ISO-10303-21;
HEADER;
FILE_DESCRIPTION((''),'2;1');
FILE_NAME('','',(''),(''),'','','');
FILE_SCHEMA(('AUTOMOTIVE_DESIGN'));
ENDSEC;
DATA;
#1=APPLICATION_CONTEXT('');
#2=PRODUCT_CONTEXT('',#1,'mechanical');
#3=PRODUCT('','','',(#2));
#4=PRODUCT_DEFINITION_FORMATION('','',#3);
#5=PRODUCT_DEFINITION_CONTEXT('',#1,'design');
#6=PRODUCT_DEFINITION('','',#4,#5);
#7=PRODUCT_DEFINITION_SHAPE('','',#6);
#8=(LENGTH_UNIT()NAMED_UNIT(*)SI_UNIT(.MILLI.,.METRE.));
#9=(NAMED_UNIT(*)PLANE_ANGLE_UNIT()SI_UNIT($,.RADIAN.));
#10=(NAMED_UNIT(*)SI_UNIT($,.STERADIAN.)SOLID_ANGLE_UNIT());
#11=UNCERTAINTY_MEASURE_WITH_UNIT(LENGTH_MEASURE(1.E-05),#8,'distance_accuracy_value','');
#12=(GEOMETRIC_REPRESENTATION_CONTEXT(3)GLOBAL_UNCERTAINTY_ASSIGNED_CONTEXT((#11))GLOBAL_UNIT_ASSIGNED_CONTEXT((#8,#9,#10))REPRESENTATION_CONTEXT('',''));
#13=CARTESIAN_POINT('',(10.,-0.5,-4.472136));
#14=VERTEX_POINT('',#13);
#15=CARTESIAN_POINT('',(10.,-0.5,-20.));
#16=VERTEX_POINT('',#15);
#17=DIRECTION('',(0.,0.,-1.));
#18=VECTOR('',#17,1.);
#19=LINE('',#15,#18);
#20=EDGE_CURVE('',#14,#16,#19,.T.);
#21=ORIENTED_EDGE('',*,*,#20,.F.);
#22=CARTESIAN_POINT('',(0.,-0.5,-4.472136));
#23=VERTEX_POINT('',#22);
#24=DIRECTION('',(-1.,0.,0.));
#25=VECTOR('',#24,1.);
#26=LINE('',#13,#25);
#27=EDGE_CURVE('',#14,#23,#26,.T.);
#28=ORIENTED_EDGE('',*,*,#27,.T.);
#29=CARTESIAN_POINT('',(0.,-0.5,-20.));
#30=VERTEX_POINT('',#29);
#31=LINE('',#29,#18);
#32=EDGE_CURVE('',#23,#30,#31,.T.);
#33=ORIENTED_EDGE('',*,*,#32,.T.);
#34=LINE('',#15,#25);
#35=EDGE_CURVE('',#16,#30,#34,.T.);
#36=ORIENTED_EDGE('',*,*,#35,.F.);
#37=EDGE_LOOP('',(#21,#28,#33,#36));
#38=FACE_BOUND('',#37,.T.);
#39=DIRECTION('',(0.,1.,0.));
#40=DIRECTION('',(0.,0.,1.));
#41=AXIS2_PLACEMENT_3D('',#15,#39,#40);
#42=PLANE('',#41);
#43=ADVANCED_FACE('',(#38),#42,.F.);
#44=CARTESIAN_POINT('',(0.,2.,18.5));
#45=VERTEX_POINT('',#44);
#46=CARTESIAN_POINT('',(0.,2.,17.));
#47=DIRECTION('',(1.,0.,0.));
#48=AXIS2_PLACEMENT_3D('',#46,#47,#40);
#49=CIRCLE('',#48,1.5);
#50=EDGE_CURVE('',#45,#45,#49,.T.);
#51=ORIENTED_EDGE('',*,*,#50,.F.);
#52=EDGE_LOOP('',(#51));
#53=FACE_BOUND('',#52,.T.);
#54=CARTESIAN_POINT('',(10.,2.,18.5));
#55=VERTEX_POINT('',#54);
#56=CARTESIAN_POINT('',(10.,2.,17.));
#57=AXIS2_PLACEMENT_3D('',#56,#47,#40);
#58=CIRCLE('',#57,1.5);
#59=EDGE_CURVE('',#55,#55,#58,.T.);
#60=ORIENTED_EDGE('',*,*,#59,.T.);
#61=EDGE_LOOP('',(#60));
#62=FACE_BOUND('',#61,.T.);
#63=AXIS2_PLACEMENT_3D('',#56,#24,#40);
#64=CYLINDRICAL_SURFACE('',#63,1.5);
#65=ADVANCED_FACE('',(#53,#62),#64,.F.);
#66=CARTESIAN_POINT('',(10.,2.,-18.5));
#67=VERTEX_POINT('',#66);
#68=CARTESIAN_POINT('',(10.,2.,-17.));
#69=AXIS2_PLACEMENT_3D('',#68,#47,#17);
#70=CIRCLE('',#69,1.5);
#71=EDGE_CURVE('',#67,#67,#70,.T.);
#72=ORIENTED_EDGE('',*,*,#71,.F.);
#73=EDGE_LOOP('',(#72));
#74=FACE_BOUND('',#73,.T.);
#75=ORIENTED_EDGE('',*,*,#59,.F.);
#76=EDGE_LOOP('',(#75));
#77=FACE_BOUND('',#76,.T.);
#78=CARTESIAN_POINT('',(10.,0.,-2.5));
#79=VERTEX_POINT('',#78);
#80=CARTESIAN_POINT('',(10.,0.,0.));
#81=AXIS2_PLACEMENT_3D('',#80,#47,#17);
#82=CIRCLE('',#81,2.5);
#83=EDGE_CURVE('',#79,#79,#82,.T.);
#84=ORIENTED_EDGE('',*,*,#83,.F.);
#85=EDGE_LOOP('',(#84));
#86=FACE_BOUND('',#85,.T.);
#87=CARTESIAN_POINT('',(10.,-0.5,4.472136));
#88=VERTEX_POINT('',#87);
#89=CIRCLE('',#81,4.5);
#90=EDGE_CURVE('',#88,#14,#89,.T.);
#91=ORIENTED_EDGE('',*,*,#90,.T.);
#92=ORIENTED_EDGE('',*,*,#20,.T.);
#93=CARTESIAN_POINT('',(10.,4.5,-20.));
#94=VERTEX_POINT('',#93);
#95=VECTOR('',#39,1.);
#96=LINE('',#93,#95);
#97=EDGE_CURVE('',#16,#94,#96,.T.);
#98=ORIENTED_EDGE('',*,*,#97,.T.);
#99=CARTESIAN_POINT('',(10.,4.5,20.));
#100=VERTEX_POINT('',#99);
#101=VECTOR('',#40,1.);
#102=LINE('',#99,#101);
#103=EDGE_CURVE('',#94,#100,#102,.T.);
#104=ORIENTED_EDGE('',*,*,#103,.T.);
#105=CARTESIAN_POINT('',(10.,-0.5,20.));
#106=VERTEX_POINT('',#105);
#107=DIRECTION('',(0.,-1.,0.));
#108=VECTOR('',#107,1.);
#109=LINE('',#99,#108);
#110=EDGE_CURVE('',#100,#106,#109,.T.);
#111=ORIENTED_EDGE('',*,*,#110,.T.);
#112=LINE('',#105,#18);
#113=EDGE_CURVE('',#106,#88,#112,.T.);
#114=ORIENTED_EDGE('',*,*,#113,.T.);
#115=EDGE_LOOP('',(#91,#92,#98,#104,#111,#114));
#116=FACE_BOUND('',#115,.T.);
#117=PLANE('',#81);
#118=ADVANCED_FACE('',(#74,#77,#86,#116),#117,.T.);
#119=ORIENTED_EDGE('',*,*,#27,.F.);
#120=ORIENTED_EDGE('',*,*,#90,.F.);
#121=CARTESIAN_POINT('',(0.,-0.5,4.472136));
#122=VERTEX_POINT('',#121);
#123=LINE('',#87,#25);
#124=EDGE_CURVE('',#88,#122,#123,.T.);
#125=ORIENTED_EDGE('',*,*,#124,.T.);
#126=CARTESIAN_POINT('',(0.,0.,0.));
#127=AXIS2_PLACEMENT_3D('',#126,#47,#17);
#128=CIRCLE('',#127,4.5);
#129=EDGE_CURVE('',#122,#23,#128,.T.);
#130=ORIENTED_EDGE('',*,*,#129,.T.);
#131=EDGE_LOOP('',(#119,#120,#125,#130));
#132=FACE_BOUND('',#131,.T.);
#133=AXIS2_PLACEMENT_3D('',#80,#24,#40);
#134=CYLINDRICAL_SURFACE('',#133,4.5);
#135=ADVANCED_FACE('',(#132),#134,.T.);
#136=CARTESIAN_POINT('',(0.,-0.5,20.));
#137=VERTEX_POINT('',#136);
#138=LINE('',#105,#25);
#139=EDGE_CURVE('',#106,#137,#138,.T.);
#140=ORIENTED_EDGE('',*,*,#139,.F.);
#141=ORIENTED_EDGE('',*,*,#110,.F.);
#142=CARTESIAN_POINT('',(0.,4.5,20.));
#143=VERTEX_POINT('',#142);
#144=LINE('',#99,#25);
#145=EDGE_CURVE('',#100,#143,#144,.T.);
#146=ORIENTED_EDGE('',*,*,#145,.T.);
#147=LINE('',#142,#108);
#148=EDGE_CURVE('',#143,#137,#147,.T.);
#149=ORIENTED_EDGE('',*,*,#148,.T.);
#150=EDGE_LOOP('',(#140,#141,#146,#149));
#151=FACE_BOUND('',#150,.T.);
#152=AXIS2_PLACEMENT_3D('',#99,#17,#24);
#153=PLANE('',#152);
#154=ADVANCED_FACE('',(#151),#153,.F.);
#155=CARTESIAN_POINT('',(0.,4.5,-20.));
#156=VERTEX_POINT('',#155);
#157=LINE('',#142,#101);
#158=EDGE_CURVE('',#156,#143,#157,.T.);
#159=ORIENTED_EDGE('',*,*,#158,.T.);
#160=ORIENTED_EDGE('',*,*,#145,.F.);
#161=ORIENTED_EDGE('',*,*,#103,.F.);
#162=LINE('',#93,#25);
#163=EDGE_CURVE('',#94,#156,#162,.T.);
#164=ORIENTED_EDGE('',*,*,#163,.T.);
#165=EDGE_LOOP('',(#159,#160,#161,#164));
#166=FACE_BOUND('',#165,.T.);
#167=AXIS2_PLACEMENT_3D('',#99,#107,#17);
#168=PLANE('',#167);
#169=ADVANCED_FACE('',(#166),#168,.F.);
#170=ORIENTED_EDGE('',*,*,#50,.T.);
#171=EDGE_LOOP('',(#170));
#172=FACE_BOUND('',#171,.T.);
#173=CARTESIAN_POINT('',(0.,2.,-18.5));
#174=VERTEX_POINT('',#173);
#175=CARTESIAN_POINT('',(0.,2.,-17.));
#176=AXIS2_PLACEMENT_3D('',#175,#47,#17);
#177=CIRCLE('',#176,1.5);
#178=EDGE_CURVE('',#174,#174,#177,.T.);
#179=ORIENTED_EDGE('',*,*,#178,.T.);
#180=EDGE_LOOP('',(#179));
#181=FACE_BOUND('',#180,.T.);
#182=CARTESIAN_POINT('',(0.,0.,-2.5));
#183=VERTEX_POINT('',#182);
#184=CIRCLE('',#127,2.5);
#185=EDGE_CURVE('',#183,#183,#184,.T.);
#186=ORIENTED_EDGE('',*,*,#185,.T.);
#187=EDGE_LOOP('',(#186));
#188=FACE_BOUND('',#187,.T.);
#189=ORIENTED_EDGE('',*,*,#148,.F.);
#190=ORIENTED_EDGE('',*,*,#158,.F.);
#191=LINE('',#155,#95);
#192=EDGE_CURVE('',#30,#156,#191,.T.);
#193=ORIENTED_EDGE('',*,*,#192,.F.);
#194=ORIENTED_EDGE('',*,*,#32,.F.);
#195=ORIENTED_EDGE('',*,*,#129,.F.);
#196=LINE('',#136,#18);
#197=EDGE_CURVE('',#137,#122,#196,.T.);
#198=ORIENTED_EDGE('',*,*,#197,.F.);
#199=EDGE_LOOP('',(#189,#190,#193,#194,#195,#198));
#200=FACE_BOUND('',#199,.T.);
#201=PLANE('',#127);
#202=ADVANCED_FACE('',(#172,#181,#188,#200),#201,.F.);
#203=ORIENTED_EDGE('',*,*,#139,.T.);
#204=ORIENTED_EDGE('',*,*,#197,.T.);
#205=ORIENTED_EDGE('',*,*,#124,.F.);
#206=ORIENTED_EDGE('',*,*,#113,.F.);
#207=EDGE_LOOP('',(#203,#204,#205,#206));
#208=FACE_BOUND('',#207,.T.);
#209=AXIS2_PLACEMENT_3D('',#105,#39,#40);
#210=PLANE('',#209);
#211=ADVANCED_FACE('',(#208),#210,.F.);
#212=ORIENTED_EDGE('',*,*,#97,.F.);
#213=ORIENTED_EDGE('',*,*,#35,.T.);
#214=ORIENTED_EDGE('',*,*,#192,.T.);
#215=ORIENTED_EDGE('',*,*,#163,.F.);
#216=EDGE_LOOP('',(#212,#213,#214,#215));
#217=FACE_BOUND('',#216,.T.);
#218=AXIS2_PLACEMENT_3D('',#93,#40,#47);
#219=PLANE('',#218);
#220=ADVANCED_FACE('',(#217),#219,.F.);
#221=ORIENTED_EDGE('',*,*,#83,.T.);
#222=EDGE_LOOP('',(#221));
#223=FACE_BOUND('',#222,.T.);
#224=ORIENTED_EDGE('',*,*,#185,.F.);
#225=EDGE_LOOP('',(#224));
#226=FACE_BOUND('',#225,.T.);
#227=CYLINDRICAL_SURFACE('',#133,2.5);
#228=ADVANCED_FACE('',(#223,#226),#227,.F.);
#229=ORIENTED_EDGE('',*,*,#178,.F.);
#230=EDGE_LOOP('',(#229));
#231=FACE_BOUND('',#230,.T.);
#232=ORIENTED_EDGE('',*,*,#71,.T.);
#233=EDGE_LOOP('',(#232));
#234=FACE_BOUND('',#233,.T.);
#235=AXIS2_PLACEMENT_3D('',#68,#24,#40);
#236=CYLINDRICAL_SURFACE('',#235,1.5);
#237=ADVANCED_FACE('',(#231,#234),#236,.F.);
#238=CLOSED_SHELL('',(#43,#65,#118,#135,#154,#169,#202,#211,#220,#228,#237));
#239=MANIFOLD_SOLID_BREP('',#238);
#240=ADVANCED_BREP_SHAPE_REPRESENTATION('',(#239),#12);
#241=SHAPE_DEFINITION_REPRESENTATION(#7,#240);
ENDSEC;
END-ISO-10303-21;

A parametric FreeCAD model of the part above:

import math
import FreeCAD as App
import Part
import Sketcher
from FreeCAD import Vector
Q = App.Units.Quantity

doc = App.newDocument("Part")
params = doc.addObject("Spreadsheet::Sheet", "Params")
for row, (alias, value) in enumerate([
    ("sketch1_diameter", "5 mm"),
    ("sketch1_diameter2", "3 mm"),
    ("sketch1_radius", "4.5 mm"),
    ("sketch1_width", "5 mm"),
    ("sketch1_height", "40 mm"),
    ("pad1_length", "10 mm"),
], start=1):
    params.set(f"A{row}", alias)
    params.set(f"B{row}", "=" + value)
    params.setAlias(f"B{row}", alias)

body = doc.addObject("PartDesign::Body", "Body")

# Sketch on YZ plane
sketch1 = body.newObject("Sketcher::SketchObject", "Sketch")
sketch1.AttachmentSupport = (doc.getObject("YZ_Plane"), [""])
sketch1.MapMode = "FlatFace"
sketch1.addGeometry([
    Part.LineSegment(Vector(4.5, -20, 0), Vector(4.5, 20, 0)),  # 0
    Part.LineSegment(Vector(4.5, 20, 0), Vector(-0.5, 20, 0)),  # 1
    Part.LineSegment(Vector(-0.5, 20, 0), Vector(-0.5, 4.472136, 0)),  # 2
    Part.ArcOfCircle(Part.Circle(Vector(0, 0, 0), Vector(0, 0, 1), 4.5), math.radians(96.37937), math.radians(263.62063)),  # 3
    Part.LineSegment(Vector(-0.5, -4.472136, 0), Vector(-0.5, -20, 0)),  # 4
    Part.LineSegment(Vector(-0.5, -20, 0), Vector(4.5, -20, 0)),  # 5
    Part.Circle(Vector(0, 0, 0), Vector(0, 0, 1), 2.5),  # 6
    Part.Circle(Vector(2, -17, 0), Vector(0, 0, 1), 1.5),  # 7
    Part.Circle(Vector(2, 17, 0), Vector(0, 0, 1), 1.5),  # 8
], False)
sketch1.addConstraint([
    Sketcher.Constraint("Coincident", 0, 2, 1, 1),
    Sketcher.Constraint("Coincident", 1, 2, 2, 1),
    Sketcher.Constraint("Coincident", 2, 2, 3, 1),
    Sketcher.Constraint("Coincident", 3, 2, 4, 1),
    Sketcher.Constraint("Coincident", 4, 2, 5, 1),
    Sketcher.Constraint("Coincident", 5, 2, 0, 1),
    Sketcher.Constraint("Vertical", 0),
    Sketcher.Constraint("Horizontal", 1),
    Sketcher.Constraint("Vertical", 2),
    Sketcher.Constraint("Vertical", 4),
    Sketcher.Constraint("Horizontal", 5),
    Sketcher.Constraint("Coincident", 3, 3, -1, 1),
    Sketcher.Constraint("Coincident", 6, 3, -1, 1),
    Sketcher.Constraint("Equal", 7, 8),
    Sketcher.Constraint("Symmetric", 7, 3, 8, 3, -1),
    Sketcher.Constraint("Symmetric", 1, 2, 4, 2, -1),
    Sketcher.Constraint("Diameter", 6, Q("5 mm")),
    Sketcher.Constraint("Diameter", 7, Q("3 mm")),
    Sketcher.Constraint("Radius", 3, Q("4.5 mm")),
    Sketcher.Constraint("DistanceX", 1, 2, 1, 1, Q("5 mm")),
    Sketcher.Constraint("DistanceY", 0, 1, 0, 2, Q("40 mm")),
    Sketcher.Constraint("DistanceX", -1, 1, 7, 3, Q("2 mm")),
    Sketcher.Constraint("DistanceY", 7, 3, -1, 1, Q("17 mm")),
    Sketcher.Constraint("DistanceX", -1, 1, 0, 2, Q("4.5 mm")),
])
sketch1.setExpression("Constraints[16]", "Params.sketch1_diameter")
sketch1.setExpression("Constraints[17]", "Params.sketch1_diameter2")
sketch1.setExpression("Constraints[18]", "Params.sketch1_radius")
sketch1.setExpression("Constraints[19]", "Params.sketch1_width")
sketch1.setExpression("Constraints[20]", "Params.sketch1_height")
pad1 = body.newObject("PartDesign::Pad", "Pad")
pad1.Profile = sketch1
pad1.setExpression("Length", "Params.pad1_length")

doc.recompute()
